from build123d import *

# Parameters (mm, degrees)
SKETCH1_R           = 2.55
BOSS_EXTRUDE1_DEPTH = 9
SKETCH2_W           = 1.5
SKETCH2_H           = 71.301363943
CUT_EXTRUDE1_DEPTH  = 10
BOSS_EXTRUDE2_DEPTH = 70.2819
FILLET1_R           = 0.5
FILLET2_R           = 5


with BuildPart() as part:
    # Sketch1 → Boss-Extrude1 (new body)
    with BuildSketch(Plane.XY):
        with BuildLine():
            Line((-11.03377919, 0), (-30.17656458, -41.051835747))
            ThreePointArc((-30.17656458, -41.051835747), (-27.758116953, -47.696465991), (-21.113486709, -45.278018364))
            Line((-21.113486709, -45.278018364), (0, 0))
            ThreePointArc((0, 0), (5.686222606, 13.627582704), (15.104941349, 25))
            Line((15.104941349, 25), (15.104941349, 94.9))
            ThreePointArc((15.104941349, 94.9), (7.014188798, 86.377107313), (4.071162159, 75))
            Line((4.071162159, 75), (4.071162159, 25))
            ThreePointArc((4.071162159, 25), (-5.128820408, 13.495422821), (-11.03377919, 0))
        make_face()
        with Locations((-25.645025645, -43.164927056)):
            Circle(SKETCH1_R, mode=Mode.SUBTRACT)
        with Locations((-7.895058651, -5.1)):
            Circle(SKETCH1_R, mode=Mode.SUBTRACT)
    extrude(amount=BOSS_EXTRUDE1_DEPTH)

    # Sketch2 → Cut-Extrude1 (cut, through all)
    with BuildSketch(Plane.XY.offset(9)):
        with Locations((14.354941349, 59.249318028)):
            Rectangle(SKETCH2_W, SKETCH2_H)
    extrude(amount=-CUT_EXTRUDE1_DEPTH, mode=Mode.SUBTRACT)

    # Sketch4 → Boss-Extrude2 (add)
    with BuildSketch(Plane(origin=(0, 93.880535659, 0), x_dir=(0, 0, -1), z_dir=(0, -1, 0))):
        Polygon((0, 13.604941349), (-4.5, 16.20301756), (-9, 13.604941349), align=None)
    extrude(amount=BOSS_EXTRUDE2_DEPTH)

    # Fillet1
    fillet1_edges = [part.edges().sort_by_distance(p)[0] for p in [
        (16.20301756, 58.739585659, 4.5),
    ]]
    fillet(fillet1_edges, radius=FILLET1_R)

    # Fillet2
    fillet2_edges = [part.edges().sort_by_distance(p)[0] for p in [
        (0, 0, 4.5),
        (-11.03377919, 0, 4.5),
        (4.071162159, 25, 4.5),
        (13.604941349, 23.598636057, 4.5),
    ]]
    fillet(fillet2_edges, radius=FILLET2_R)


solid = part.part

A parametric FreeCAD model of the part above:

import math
import FreeCAD as App
import Part
import Sketcher
Q = App.Units.Quantity


def edges_at(feature, points):
    """Names of the edges that pass closest to the given points."""
    edges = feature.Shape.Edges
    near = lambda p: min(range(len(edges)), key=lambda i: edges[i].distToShape(Part.Vertex(*p))[0])
    return sorted({f"Edge{near(p) + 1}" for p in points})

doc = App.newDocument("Part")
params = doc.addObject("Spreadsheet::Sheet", "Params")
for row, (alias, value) in enumerate([
    ("sketch1_radius", "5 mm"),
    ("sketch1_radius2", "50 mm"),
    ("sketch1_diameter", "5.1 mm"),
    ("sketch1_height", "50 mm"),
    ("sketch1_height2", "69.9 mm"),
    ("pad1_length", "9 mm"),
    ("sketch2_width", "1.5 mm"),
    ("sketch3_height", "9 mm"),
    ("pad2_length", "70.2819 mm"),
    ("fillet_radius", "0.5 mm"),
    ("fillet2_radius", "5 mm"),
], start=1):
    params.set(f"A{row}", alias)
    params.set(f"B{row}", "=" + value)
    params.setAlias(f"B{row}", alias)

body = doc.addObject("PartDesign::Body", "Body")

# Sketch on XY plane
sketch1 = body.newObject("Sketcher::SketchObject", "Sketch")
sketch1.AttachmentSupport = (doc.getObject("XY_Plane"), [""])
sketch1.MapMode = "FlatFace"
sketch1.addGeometry(Part.LineSegment(App.Vector(-11.033779, 0, 0), App.Vector(-30.176565, -41.051836, 0)), False)
sketch1.addGeometry(Part.ArcOfCircle(Part.Circle(App.Vector(-25.645026, -43.164927, 0), App.Vector(0, 0, 1), 5), math.radians(155), math.radians(335)), False)
sketch1.addGeometry(Part.LineSegment(App.Vector(-21.113487, -45.278018, 0), App.Vector(0, 0, 0)), False)
sketch1.addGeometry(Part.ArcOfCircle(Part.Circle(App.Vector(48.481413, -12.229171, 0), App.Vector(0, 0, 1), 50), math.radians(131.87667), math.radians(165.842784)), False)
sketch1.addGeometry(Part.LineSegment(App.Vector(15.104941, 25, 0), App.Vector(15.104941, 94.9, 0)), False)
sketch1.addGeometry(Part.ArcOfCircle(Part.Circle(App.Vector(27.533399, 75, 0), App.Vector(0, 0, 1), 23.462237), math.radians(121.986658), math.radians(180)), False)
sketch1.addGeometry(Part.LineSegment(App.Vector(4.071162, 75, 0), App.Vector(4.071162, 25, 0)), False)
sketch1.addGeometry(Part.ArcOfCircle(Part.Circle(App.Vector(43.114927, -15.653336, 0), App.Vector(0, 0, 1), 56.365852), math.radians(133.843006), math.radians(163.876448)), False)
sketch1.addGeometry(Part.Circle(App.Vector(-25.645026, -43.164927, 0), App.Vector(0, 0, 1), 2.55), False)
sketch1.addGeometry(Part.Circle(App.Vector(-7.895059, -5.1, 0), App.Vector(0, 0, 1), 2.55), False)
sketch1.addConstraint(Sketcher.Constraint("Tangent", 0, 2, 1, 1))
sketch1.addConstraint(Sketcher.Constraint("Tangent", 1, 2, 2, 1))
sketch1.addConstraint(Sketcher.Constraint("Coincident", 2, 2, 3, 2))
sketch1.addConstraint(Sketcher.Constraint("Coincident", 3, 1, 4, 1))
sketch1.addConstraint(Sketcher.Constraint("Coincident", 4, 2, 5, 1))
sketch1.addConstraint(Sketcher.Constraint("Tangent", 5, 2, 6, 1))
sketch1.addConstraint(Sketcher.Constraint("Coincident", 6, 2, 7, 1))
sketch1.addConstraint(Sketcher.Constraint("Coincident", 7, 2, 0, 1))
sketch1.addConstraint(Sketcher.Constraint("Vertical", 4))
sketch1.addConstraint(Sketcher.Constraint("Vertical", 6))
sketch1.addConstraint(Sketcher.Constraint("Coincident", 2, 2, -1, 1))
sketch1.addConstraint(Sketcher.Constraint("Coincident", 8, 3, 1, 3))
sketch1.addConstraint(Sketcher.Constraint("Equal", 8, 9))
sketch1.addConstraint(Sketcher.Constraint("PointOnObject", 7, 2, -1))
sketch1.addConstraint(Sketcher.Constraint("Parallel", 0, 2))
sketch1.addConstraint(Sketcher.Constraint("Horizontal", 3, 1, 6, 2))
sketch1.addConstraint(Sketcher.Constraint("Radius", 1, Q("5 mm")))
sketch1.addConstraint(Sketcher.Constraint("Radius", 3, Q("50 mm")))
sketch1.addConstraint(Sketcher.Constraint("Diameter", 8, Q("5.1 mm")))
sketch1.addConstraint(Sketcher.Constraint("DistanceY", 6, 2, 6, 1, Q("50 mm")))
sketch1.addConstraint(Sketcher.Constraint("Angle", 0, Q("-115 deg")))
sketch1.addConstraint(Sketcher.Constraint("DistanceY", 4, 1, 4, 2, Q("69.9 mm")))
sketch1.addConstraint(Sketcher.Constraint("DistanceY", -1, 1, 5, 3, Q("75 mm")))
sketch1.addConstraint(Sketcher.Constraint("DistanceX", 9, 3, 3, 1, Q("23 mm")))
sketch1.addConstraint(Sketcher.Constraint("DistanceY", 9, 3, 4, 2, Q("100 mm")))
sketch1.addConstraint(Sketcher.Constraint("Radius", 5, Q("23.462237 mm")))
sketch1.addConstraint(Sketcher.Constraint("Radius", 7, Q("56.365852 mm")))
sketch1.addConstraint(Sketcher.Constraint("DistanceX", -1, 1, 5, 3, Q("27.533399 mm")))
sketch1.addConstraint(Sketcher.Constraint("DistanceY", 0, 2, 7, 3, Q("25.3985 mm")))
sketch1.setExpression("Constraints[16]", "Params.sketch1_radius")
sketch1.setExpression("Constraints[17]", "Params.sketch1_radius2")
sketch1.setExpression("Constraints[18]", "Params.sketch1_diameter")
sketch1.setExpression("Constraints[19]", "Params.sketch1_height")
sketch1.setExpression("Constraints[21]", "Params.sketch1_height2")
pad1 = body.newObject("PartDesign::Pad", "Pad")
pad1.Profile = sketch1
pad1.setExpression("Length", "Params.pad1_length")

# Sketch on XY plane
sketch2 = body.newObject("Sketcher::SketchObject", "Sketch001")
sketch2.AttachmentSupport = (doc.getObject("XY_Plane"), [""])
sketch2.MapMode = "FlatFace"
sketch2.AttachmentOffset = App.Placement(App.Vector(0, 0, 9), App.Rotation())
sketch2.addGeometry(Part.LineSegment(App.Vector(13.604941, 94.9, 0), App.Vector(13.604941, 23.598636, 0)), False)
sketch2.addGeometry(Part.LineSegment(App.Vector(13.604941, 23.598636, 0), App.Vector(15.104941, 23.598636, 0)), False)
sketch2.addGeometry(Part.LineSegment(App.Vector(15.104941, 23.598636, 0), App.Vector(15.104941, 94.9, 0)), False)
sketch2.addGeometry(Part.LineSegment(App.Vector(15.104941, 94.9, 0), App.Vector(13.604941, 94.9, 0)), False)
sketch2.addConstraint(Sketcher.Constraint("Coincident", 0, 2, 1, 1))
sketch2.addConstraint(Sketcher.Constraint("Coincident", 1, 2, 2, 1))
sketch2.addConstraint(Sketcher.Constraint("Coincident", 2, 2, 3, 1))
sketch2.addConstraint(Sketcher.Constraint("Coincident", 3, 2, 0, 1))
sketch2.addConstraint(Sketcher.Constraint("Vertical", 0))
sketch2.addConstraint(Sketcher.Constraint("Horizontal", 1))
sketch2.addConstraint(Sketcher.Constraint("Vertical", 2))
sketch2.addConstraint(Sketcher.Constraint("Horizontal", 3))
sketch2.addConstraint(Sketcher.Constraint("DistanceX", 1, 1, 1, 2, Q("1.5 mm")))
sketch2.addConstraint(Sketcher.Constraint("DistanceY", -1, 1, 2, 2, Q("94.9 mm")))
sketch2.addConstraint(Sketcher.Constraint("DistanceY", 0, 2, 0, 1, Q("71.301364 mm")))
sketch2.addConstraint(Sketcher.Constraint("DistanceX", -1, 1, 0, 2, Q("13.604941 mm")))
sketch2.setExpression("Constraints[8]", "Params.sketch2_width")
pocket1 = body.newObject("PartDesign::Pocket", "Pocket")
pocket1.Profile = sketch2
pocket1.Type = "ThroughAll"

# Sketch on XZ plane
sketch3 = body.newObject("Sketcher::SketchObject", "Sketch002")
sketch3.AttachmentSupport = (doc.getObject("XZ_Plane"), [""])
sketch3.MapMode = "FlatFace"
sketch3.AttachmentOffset = App.Placement(App.Vector(0, 0, -93.880536), App.Rotation())
sketch3.addGeometry(Part.LineSegment(App.Vector(13.604941, 0, 0), App.Vector(16.203018, 4.5, 0)), False)
sketch3.addGeometry(Part.LineSegment(App.Vector(16.203018, 4.5, 0), App.Vector(13.604941, 9, 0)), False)
sketch3.addGeometry(Part.LineSegment(App.Vector(13.604941, 9, 0), App.Vector(13.604941, 0, 0)), False)
sketch3.addConstraint(Sketcher.Constraint("Coincident", 0, 2, 1, 1))
sketch3.addConstraint(Sketcher.Constraint("Coincident", 1, 2, 2, 1))
sketch3.addConstraint(Sketcher.Constraint("Coincident", 2, 2, 0, 1))
sketch3.addConstraint(Sketcher.Constraint("Vertical", 2))
sketch3.addConstraint(Sketcher.Constraint("PointOnObject", 2, 2, -1))
sketch3.addConstraint(Sketcher.Constraint("Equal", 0, 1))
sketch3.addConstraint(Sketcher.Constraint("DistanceY", 2, 2, 2, 1, Q("9 mm")))
sketch3.addConstraint(Sketcher.Constraint("Angle", 0, Q("60 deg")))
sketch3.addConstraint(Sketcher.Constraint("DistanceX", -1, 1, 1, 2, Q("13.604941 mm")))
sketch3.setExpression("Constraints[6]", "Params.sketch3_height")
pad2 = body.newObject("PartDesign::Pad", "Pad001")
pad2.Profile = sketch3
pad2.setExpression("Length", "Params.pad2_length")
doc.recompute()

fillet = body.newObject("PartDesign::Fillet", "Fillet")
fillet.Base = (pad2, edges_at(pad2, [(16.203, 58.74, 4.5)]))
fillet.setExpression("Radius", "Params.fillet_radius")
doc.recompute()

fillet2 = body.newObject("PartDesign::Fillet", "Fillet001")
fillet2.Base = (fillet, edges_at(fillet, [
    (0, 0, 4.5),
    (-11.034, 0, 4.5),
    (4.071, 25, 4.5),
    (13.605, 23.599, 4.5),
]))
fillet2.setExpression("Radius", "Params.fillet2_radius")

doc.recompute()
